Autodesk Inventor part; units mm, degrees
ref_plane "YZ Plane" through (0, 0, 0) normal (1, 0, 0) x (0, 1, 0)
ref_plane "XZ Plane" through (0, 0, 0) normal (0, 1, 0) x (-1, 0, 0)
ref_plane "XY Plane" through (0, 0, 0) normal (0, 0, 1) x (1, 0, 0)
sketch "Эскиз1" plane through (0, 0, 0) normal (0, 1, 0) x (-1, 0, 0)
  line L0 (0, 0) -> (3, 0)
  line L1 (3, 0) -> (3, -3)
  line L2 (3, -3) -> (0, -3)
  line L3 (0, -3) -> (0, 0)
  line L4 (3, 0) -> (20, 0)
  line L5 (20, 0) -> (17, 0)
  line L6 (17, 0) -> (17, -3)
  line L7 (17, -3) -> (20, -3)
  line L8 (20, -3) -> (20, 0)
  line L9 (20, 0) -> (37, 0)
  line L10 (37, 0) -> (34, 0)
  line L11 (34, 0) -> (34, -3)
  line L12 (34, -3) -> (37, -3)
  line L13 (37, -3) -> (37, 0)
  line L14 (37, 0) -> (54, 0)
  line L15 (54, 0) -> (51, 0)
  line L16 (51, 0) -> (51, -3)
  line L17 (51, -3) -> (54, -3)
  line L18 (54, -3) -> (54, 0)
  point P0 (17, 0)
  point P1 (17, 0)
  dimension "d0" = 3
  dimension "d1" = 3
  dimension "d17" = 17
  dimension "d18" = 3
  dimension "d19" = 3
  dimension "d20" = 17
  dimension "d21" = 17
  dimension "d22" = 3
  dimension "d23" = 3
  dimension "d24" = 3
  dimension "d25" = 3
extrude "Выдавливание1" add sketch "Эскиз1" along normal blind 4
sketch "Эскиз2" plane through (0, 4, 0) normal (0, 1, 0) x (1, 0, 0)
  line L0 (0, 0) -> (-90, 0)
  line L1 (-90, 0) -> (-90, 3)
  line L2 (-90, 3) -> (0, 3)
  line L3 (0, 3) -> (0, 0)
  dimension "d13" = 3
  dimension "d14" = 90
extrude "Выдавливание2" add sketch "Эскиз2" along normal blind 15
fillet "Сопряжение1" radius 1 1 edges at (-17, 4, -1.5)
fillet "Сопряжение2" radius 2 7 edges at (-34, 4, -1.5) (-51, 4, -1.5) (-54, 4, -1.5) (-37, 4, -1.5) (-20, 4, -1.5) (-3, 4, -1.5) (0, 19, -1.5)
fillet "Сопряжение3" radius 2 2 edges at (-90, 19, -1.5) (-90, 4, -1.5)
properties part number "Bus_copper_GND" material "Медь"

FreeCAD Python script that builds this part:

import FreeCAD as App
import Part
import Sketcher

V = App.Vector
Q = App.Units.Quantity


def edges_at(feature, points):
    """Names of the edges that pass closest to the given points."""
    edges = feature.Shape.Edges
    near = lambda p: min(range(len(edges)), key=lambda i: edges[i].distToShape(Part.Vertex(*p))[0])
    return sorted({f"Edge{near(p) + 1}" for p in points})


def add_polygon(sketch, points):
    """Adds a closed chain of lines whose ends are joined by coincident constraints."""
    first, n = sketch.GeometryCount, len(points)
    for a, b in zip(points, points[1:] + points[:1]):
        sketch.addGeometry(Part.LineSegment(App.Vector(*a, 0), App.Vector(*b, 0)), False)
    for i in range(n):
        sketch.addConstraint(Sketcher.Constraint("Coincident", first + i, 2, first + (i + 1) % n, 1))

doc = App.newDocument("Part")
body = doc.addObject("PartDesign::Body", "Body")
body.AllowCompound = True

# Sketch on XZ plane
sketch1 = body.newObject("Sketcher::SketchObject", "Sketch")
sketch1.AttachmentSupport = (doc.getObject("XZ_Plane"), [""])
sketch1.MapMode = "FlatFace"
add_polygon(sketch1, [(-54, 0), (-51, 0), (-51, -3), (-54, -3)])  # lines 0-3
add_polygon(sketch1, [(-37, 0), (-34, 0), (-34, -3), (-37, -3)])  # lines 4-7
add_polygon(sketch1, [(-20, 0), (-17, 0), (-17, -3), (-20, -3)])  # lines 8-11
add_polygon(sketch1, [(-3, 0), (0, 0), (0, -3), (-3, -3)])  # lines 12-15
sketch1.addConstraint([
    Sketcher.Constraint("Horizontal", 0),
    Sketcher.Constraint("Vertical", 1),
    Sketcher.Constraint("Horizontal", 2),
    Sketcher.Constraint("Vertical", 3),
    Sketcher.Constraint("Horizontal", 4),
    Sketcher.Constraint("Vertical", 5),
    Sketcher.Constraint("Horizontal", 6),
    Sketcher.Constraint("Vertical", 7),
    Sketcher.Constraint("Horizontal", 8),
    Sketcher.Constraint("Vertical", 9),
    Sketcher.Constraint("Horizontal", 10),
    Sketcher.Constraint("Vertical", 11),
    Sketcher.Constraint("Horizontal", 12),
    Sketcher.Constraint("Vertical", 13),
    Sketcher.Constraint("Horizontal", 14),
    Sketcher.Constraint("Vertical", 15),
    Sketcher.Constraint("Coincident", 12, 2, -1, 1),
    Sketcher.Constraint("PointOnObject", 0, 2, -1),
    Sketcher.Constraint("PointOnObject", 4, 2, -1),
    Sketcher.Constraint("PointOnObject", 8, 2, -1),
    Sketcher.Constraint("Horizontal", 2, 2, 5, 2),
    Sketcher.Constraint("Horizontal", 6, 2, 9, 2),
    Sketcher.Constraint("Horizontal", 10, 2, 13, 2),
    Sketcher.Constraint("Equal", 2, 4),
    Sketcher.Constraint("Equal", 6, 8),
    Sketcher.Constraint("Equal", 10, 12),
    Sketcher.Constraint("Equal", 14, 1),
    Sketcher.Constraint("DistanceX", 0, 1, 0, 2, Q("3 mm")),
    Sketcher.Constraint("DistanceX", 8, 2, -1, 1, Q("17 mm")),
    Sketcher.Constraint("DistanceX", 0, 2, 4, 2, Q("17 mm")),
    Sketcher.Constraint("DistanceX", 4, 2, 8, 2, Q("17 mm")),
])
pad1 = body.newObject("PartDesign::Pad", "Pad")
pad1.Profile = sketch1
pad1.Length = 4
pad1.Reversed = True

# Sketch on XZ plane
sketch2 = body.newObject("Sketcher::SketchObject", "Sketch001")
sketch2.AttachmentSupport = (doc.getObject("XZ_Plane"), [""])
sketch2.MapMode = "FlatFace"
sketch2.AttachmentOffset = App.Placement(V(0, 0, -4), App.Rotation())
add_polygon(sketch2, [(-90, 0), (0, 0), (0, -3), (-90, -3)])  # lines 0-3
sketch2.addConstraint([
    Sketcher.Constraint("Horizontal", 0),
    Sketcher.Constraint("Vertical", 1),
    Sketcher.Constraint("Horizontal", 2),
    Sketcher.Constraint("Vertical", 3),
    Sketcher.Constraint("Coincident", 0, 2, -1, 1),
    Sketcher.Constraint("DistanceX", 0, 1, 0, 2, Q("90 mm")),
    Sketcher.Constraint("DistanceY", 1, 2, 1, 1, Q("3 mm")),
])
pad2 = body.newObject("PartDesign::Pad", "Pad001")
pad2.Profile = sketch2
pad2.Length = 15
pad2.Reversed = True
doc.recompute()

fillet = body.newObject("PartDesign::Fillet", "Fillet")
fillet.Base = (pad2, edges_at(pad2, [(-17, 4, -1.5)]))
fillet.Radius = 1
doc.recompute()

fillet2 = body.newObject("PartDesign::Fillet", "Fillet001")
fillet2.Base = (fillet, edges_at(fillet, [
    (-34, 4, -1.5),
    (-51, 4, -1.5),
    (-54, 4, -1.5),
    (-37, 4, -1.5),
    (-20, 4, -1.5),
    (-3, 4, -1.5),
    (0, 19, -1.5),
]))
fillet2.Radius = 2
doc.recompute()

fillet3 = body.newObject("PartDesign::Fillet", "Fillet002")
fillet3.Base = (fillet2, edges_at(fillet2, [(-90, 19, -1.5), (-90, 4, -1.5)]))
fillet3.Radius = 2

doc.recompute()
